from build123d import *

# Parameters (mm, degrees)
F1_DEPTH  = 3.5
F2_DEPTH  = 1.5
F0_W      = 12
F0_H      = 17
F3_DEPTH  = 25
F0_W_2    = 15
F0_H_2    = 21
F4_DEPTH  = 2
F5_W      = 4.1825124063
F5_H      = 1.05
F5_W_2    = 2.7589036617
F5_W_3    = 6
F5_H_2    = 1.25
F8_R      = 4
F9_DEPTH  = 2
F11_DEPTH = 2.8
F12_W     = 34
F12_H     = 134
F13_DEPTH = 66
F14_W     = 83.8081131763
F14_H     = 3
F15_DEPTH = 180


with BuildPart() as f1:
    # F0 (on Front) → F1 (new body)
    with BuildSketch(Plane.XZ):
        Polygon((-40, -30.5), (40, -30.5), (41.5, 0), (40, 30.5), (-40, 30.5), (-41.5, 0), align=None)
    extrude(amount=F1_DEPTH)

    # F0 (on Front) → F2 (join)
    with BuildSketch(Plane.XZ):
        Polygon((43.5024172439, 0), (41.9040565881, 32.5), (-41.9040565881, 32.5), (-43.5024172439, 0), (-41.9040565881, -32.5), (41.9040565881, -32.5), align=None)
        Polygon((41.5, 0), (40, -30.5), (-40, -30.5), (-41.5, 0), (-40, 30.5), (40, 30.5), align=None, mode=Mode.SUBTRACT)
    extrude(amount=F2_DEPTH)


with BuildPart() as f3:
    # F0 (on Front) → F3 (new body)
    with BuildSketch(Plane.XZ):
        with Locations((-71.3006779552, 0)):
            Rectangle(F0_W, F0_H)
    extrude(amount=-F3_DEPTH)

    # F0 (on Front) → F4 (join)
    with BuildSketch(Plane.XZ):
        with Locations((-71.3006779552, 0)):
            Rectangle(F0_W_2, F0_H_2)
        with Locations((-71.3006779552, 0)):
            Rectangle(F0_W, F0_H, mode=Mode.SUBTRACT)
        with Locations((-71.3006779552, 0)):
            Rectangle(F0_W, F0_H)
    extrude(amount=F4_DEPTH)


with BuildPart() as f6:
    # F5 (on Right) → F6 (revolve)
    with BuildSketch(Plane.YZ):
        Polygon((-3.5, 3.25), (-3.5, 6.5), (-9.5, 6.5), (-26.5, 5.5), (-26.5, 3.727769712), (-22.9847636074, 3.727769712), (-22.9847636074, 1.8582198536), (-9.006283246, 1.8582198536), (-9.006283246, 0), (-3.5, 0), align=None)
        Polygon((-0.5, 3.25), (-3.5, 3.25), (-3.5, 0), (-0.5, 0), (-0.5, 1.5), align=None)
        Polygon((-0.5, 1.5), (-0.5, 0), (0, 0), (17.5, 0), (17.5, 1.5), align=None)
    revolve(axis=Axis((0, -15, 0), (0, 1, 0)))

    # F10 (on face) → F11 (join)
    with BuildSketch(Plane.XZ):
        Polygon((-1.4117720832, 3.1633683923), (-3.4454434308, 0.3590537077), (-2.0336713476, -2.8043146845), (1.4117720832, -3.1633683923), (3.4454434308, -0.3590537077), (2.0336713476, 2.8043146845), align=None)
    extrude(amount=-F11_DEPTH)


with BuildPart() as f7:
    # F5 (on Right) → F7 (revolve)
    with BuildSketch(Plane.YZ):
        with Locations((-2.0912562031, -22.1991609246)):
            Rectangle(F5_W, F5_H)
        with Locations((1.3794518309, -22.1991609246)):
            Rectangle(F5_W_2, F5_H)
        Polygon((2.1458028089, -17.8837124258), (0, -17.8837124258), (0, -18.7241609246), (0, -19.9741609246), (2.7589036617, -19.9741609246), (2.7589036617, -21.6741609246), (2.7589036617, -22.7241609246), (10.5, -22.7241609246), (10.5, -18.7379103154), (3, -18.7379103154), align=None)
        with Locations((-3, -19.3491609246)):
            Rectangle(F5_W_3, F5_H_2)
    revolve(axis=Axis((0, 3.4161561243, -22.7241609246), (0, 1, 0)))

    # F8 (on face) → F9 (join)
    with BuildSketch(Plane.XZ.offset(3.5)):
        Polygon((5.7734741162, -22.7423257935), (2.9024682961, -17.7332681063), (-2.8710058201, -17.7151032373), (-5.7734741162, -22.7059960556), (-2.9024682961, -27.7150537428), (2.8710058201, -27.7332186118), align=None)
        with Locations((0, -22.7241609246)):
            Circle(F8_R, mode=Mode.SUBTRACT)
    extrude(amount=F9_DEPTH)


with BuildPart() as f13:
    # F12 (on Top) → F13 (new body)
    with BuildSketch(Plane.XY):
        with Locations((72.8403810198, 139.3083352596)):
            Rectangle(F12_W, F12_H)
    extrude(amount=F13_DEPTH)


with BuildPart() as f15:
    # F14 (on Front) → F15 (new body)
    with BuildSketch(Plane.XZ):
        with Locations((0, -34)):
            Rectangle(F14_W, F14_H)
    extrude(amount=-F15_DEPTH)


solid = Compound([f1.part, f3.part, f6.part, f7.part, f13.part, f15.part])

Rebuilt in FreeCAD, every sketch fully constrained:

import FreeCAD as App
import Part
import Sketcher
from FreeCAD import Vector
Q = App.Units.Quantity


def add_polygon(sketch, points):
    """Adds a closed chain of lines whose ends are joined by coincident constraints."""
    first, n = sketch.GeometryCount, len(points)
    for a, b in zip(points, points[1:] + points[:1]):
        sketch.addGeometry(Part.LineSegment(App.Vector(*a, 0), App.Vector(*b, 0)), False)
    for i in range(n):
        sketch.addConstraint(Sketcher.Constraint("Coincident", first + i, 2, first + (i + 1) % n, 1))

doc = App.newDocument("Part")
body = doc.addObject("PartDesign::Body", "Body")

# Sketch on XZ plane
sketch1 = body.newObject("Sketcher::SketchObject", "Sketch")
sketch1.AttachmentSupport = (doc.getObject("XZ_Plane"), [""])
sketch1.MapMode = "FlatFace"
add_polygon(sketch1, [(-40, -30.5), (40, -30.5), (41.5, 0), (40, 30.5), (-40, 30.5), (-41.5, 0)])  # lines 0-5
sketch1.addConstraint(Sketcher.Constraint("Horizontal", 0))
sketch1.addConstraint(Sketcher.Constraint("Horizontal", 3))
sketch1.addConstraint(Sketcher.Constraint("Symmetric", 0, 2, 3, 2, -1, 1))
sketch1.addConstraint(Sketcher.Constraint("Symmetric", 1, 2, 4, 2, -1, 1))
sketch1.addConstraint(Sketcher.Constraint("PointOnObject", 1, 2, -1))
sketch1.addConstraint(Sketcher.Constraint("Parallel", 2, 5))
sketch1.addConstraint(Sketcher.Constraint("Vertical", 0, 2, 2, 2))
sketch1.addConstraint(Sketcher.Constraint("DistanceX", 0, 1, 0, 2, Q("80 mm")))
sketch1.addConstraint(Sketcher.Constraint("DistanceY", 0, 2, 2, 2, Q("61 mm")))
sketch1.addConstraint(Sketcher.Constraint("DistanceX", 4, 2, 1, 2, Q("83 mm")))
pad1 = body.newObject("PartDesign::Pad", "Pad")
pad1.Profile = sketch1
pad1.Length = 3.5

# Sketch on XZ plane
sketch2 = body.newObject("Sketcher::SketchObject", "Sketch001")
sketch2.AttachmentSupport = (doc.getObject("XZ_Plane"), [""])
sketch2.MapMode = "FlatFace"
add_polygon(sketch2, [(43.502417, 0), (41.904057, 32.5), (-41.904057, 32.5), (-43.502417, 0), (-41.904057, -32.5), (41.904057, -32.5)])  # lines 0-5
add_polygon(sketch2, [(40, 30.5), (41.5, 0), (40, -30.5), (-40, -30.5), (-41.5, 0), (-40, 30.5)])  # lines 6-11
sketch2.addConstraint(Sketcher.Constraint("Horizontal", 1))
sketch2.addConstraint(Sketcher.Constraint("Horizontal", 4))
sketch2.addConstraint(Sketcher.Constraint("Horizontal", 8))
sketch2.addConstraint(Sketcher.Constraint("Horizontal", 11))
sketch2.addConstraint(Sketcher.Constraint("Symmetric", 0, 2, 3, 2, -1, 1))
sketch2.addConstraint(Sketcher.Constraint("Symmetric", 2, 2, 5, 2, -1, 1))
sketch2.addConstraint(Sketcher.Constraint("Symmetric", 6, 2, 9, 2, -1, 1))
sketch2.addConstraint(Sketcher.Constraint("Symmetric", 7, 2, 10, 2, -1, 1))
sketch2.addConstraint(Sketcher.Constraint("PointOnObject", 2, 2, -1))
sketch2.addConstraint(Sketcher.Constraint("PointOnObject", 6, 2, -1))
sketch2.addConstraint(Sketcher.Constraint("Parallel", 2, 5))
sketch2.addConstraint(Sketcher.Constraint("Parallel", 3, 6))
sketch2.addConstraint(Sketcher.Constraint("Parallel", 5, 7))
sketch2.addConstraint(Sketcher.Constraint("Parallel", 6, 9))
sketch2.addConstraint(Sketcher.Constraint("Vertical", 1, 2, 3, 2))
sketch2.addConstraint(Sketcher.Constraint("DistanceX", 8, 2, 8, 1, Q("80 mm")))
sketch2.addConstraint(Sketcher.Constraint("DistanceY", 3, 2, 1, 2, Q("65 mm")))
sketch2.addConstraint(Sketcher.Constraint("DistanceY", 4, 2, 7, 2, Q("2 mm")))
sketch2.addConstraint(Sketcher.Constraint("DistanceX", 9, 2, 6, 2, Q("83 mm")))
sketch2.addConstraint(Sketcher.Constraint("DistanceX", 1, 2, 1, 1, Q("83.808113 mm")))
pad2 = body.newObject("PartDesign::Pad", "Pad001")
pad2.Profile = sketch2
pad2.Length = 1.5
body2 = doc.addObject("PartDesign::Body", "Body001")

# Sketch on XZ plane
sketch3 = body2.newObject("Sketcher::SketchObject", "Sketch002")
sketch3.AttachmentSupport = (doc.getObject("XZ_Plane001"), [""])
sketch3.MapMode = "FlatFace"
add_polygon(sketch3, [(-77.300678, 8.5), (-77.300678, -8.5), (-65.300678, -8.5), (-65.300678, 8.5)])  # lines 0-3
sketch3.addConstraint(Sketcher.Constraint("Vertical", 0))
sketch3.addConstraint(Sketcher.Constraint("Horizontal", 1))
sketch3.addConstraint(Sketcher.Constraint("Vertical", 2))
sketch3.addConstraint(Sketcher.Constraint("Horizontal", 3))
sketch3.addConstraint(Sketcher.Constraint("DistanceX", 1, 1, 1, 2, Q("12 mm")))
sketch3.addConstraint(Sketcher.Constraint("DistanceY", 0, 2, 0, 1, Q("17 mm")))
sketch3.addConstraint(Sketcher.Constraint("DistanceY", 0, 2, -1, 1, Q("8.5 mm")))
sketch3.addConstraint(Sketcher.Constraint("DistanceX", 0, 2, -1, 1, Q("77.300678 mm")))
pad3 = body2.newObject("PartDesign::Pad", "Pad002")
pad3.Profile = sketch3
pad3.Length = 25
pad3.Reversed = True

# Sketch on XZ plane
sketch4 = body2.newObject("Sketcher::SketchObject", "Sketch003")
sketch4.AttachmentSupport = (doc.getObject("XZ_Plane001"), [""])
sketch4.MapMode = "FlatFace"
add_polygon(sketch4, [(-78.800678, 10.5), (-78.800678, -10.5), (-63.800678, -10.5), (-63.800678, 10.5)])  # lines 0-3
sketch4.addConstraint(Sketcher.Constraint("Vertical", 0))
sketch4.addConstraint(Sketcher.Constraint("Horizontal", 1))
sketch4.addConstraint(Sketcher.Constraint("Vertical", 2))
sketch4.addConstraint(Sketcher.Constraint("Horizontal", 3))
sketch4.addConstraint(Sketcher.Constraint("DistanceX", 1, 1, 1, 2, Q("15 mm")))
sketch4.addConstraint(Sketcher.Constraint("DistanceY", 0, 2, 0, 1, Q("21 mm")))
sketch4.addConstraint(Sketcher.Constraint("DistanceY", 0, 2, -1, 1, Q("10.5 mm")))
sketch4.addConstraint(Sketcher.Constraint("DistanceX", 0, 2, -1, 1, Q("78.800678 mm")))
pad4 = body2.newObject("PartDesign::Pad", "Pad003")
pad4.Profile = sketch4
pad4.Length = 2
body3 = doc.addObject("PartDesign::Body", "Body002")

# Sketch on YZ plane
sketch5 = body3.newObject("Sketcher::SketchObject", "Sketch004")
sketch5.AttachmentSupport = (doc.getObject("YZ_Plane002"), [""])
sketch5.MapMode = "FlatFace"
add_polygon(sketch5, [(-3.5, 6.5), (-9.5, 6.5), (-26.5, 5.5), (-26.5, 3.72777), (-22.984764, 3.72777), (-22.984764, 1.85822), (-9.006283, 1.85822), (-9.006283, 0), (17.5, 0), (17.5, 1.5), (-0.5, 1.5), (-0.5, 3.25), (-3.5, 3.25)])  # lines 0-12
sketch5.addConstraint(Sketcher.Constraint("Horizontal", 0))
sketch5.addConstraint(Sketcher.Constraint("Vertical", 2))
sketch5.addConstraint(Sketcher.Constraint("Horizontal", 3))
sketch5.addConstraint(Sketcher.Constraint("Vertical", 4))
sketch5.addConstraint(Sketcher.Constraint("Horizontal", 5))
sketch5.addConstraint(Sketcher.Constraint("Vertical", 6))
sketch5.addConstraint(Sketcher.Constraint("Horizontal", 7))
sketch5.addConstraint(Sketcher.Constraint("Vertical", 8))
sketch5.addConstraint(Sketcher.Constraint("Horizontal", 9))
sketch5.addConstraint(Sketcher.Constraint("Vertical", 10))
sketch5.addConstraint(Sketcher.Constraint("Horizontal", 11))
sketch5.addConstraint(Sketcher.Constraint("Vertical", 12))
sketch5.addConstraint(Sketcher.Constraint("PointOnObject", 6, 2, -1))
sketch5.addConstraint(Sketcher.Constraint("DistanceX", 0, 2, 0, 1, Q("6 mm")))
sketch5.addConstraint(Sketcher.Constraint("DistanceX", 9, 2, 9, 1, Q("18 mm")))
sketch5.addConstraint(Sketcher.Constraint("DistanceX", 11, 2, 11, 1, Q("3 mm")))
sketch5.addConstraint(Sketcher.Constraint("DistanceY", 8, 1, 8, 2, Q("1.5 mm")))
sketch5.addConstraint(Sketcher.Constraint("DistanceX", 1, 2, 0, 2, Q("17 mm")))
sketch5.addConstraint(Sketcher.Constraint("DistanceY", 1, 2, 0, 2, Q("1 mm")))
sketch5.addConstraint(Sketcher.Constraint("DistanceY", 8, 2, 0, 2, Q("5 mm")))
sketch5.addConstraint(Sketcher.Constraint("DistanceY", 10, 1, 10, 2, Q("1.75 mm")))
sketch5.addConstraint(Sketcher.Constraint("DistanceX", 0, 2, -1, 1, Q("9.5 mm")))
sketch5.addConstraint(Sketcher.Constraint("DistanceX", 5, 1, 5, 2, Q("13.97848 mm")))
sketch5.addConstraint(Sketcher.Constraint("DistanceY", 2, 2, 2, 1, Q("1.77223 mm")))
sketch5.addConstraint(Sketcher.Constraint("DistanceY", 4, 2, 4, 1, Q("1.86955 mm")))
sketch5.addConstraint(Sketcher.Constraint("DistanceX", 3, 1, 3, 2, Q("3.515236 mm")))
revolution = body3.newObject("PartDesign::Revolution", "Revolution")
revolution.Profile = sketch5
revolution.ReferenceAxis = (sketch5, ["H_Axis"])
revolution.Angle = 360

# Sketch on XZ plane
sketch6 = body3.newObject("Sketcher::SketchObject", "Sketch005")
sketch6.AttachmentSupport = (doc.getObject("XZ_Plane002"), [""])
sketch6.MapMode = "FlatFace"
add_polygon(sketch6, [(-1.411772, 3.163368), (-3.445443, 0.359054), (-2.033671, -2.804315), (1.411772, -3.163368), (3.445443, -0.359054), (2.033671, 2.804315)])  # lines 0-5
sketch6.addConstraint(Sketcher.Constraint("Symmetric", 0, 2, 3, 2, -1, 1))
sketch6.addConstraint(Sketcher.Constraint("Symmetric", 1, 2, 4, 2, -1, 1))
sketch6.addConstraint(Sketcher.Constraint("Symmetric", 2, 2, 5, 2, -1, 1))
sketch6.addConstraint(Sketcher.Constraint("Equal", 0, 1))
sketch6.addConstraint(Sketcher.Constraint("Equal", 1, 2))
sketch6.addConstraint(Sketcher.Constraint("Distance", 0, Q("3.464102 mm")))
sketch6.addConstraint(Sketcher.Constraint("DistanceX", 2, 2, 4, 2, Q("0.621899 mm")))
sketch6.addConstraint(Sketcher.Constraint("DistanceX", 1, 2, -1, 1, Q("2.033671 mm")))
sketch6.addConstraint(Sketcher.Constraint("DistanceY", 2, 2, -1, 1, Q("3.163368 mm")))
pad5 = body3.newObject("PartDesign::Pad", "Pad004")
pad5.Profile = sketch6
pad5.Length = 2.8
pad5.Reversed = True
body4 = doc.addObject("PartDesign::Body", "Body003")

# Sketch on YZ plane
sketch7 = body4.newObject("Sketcher::SketchObject", "Sketch006")
sketch7.AttachmentSupport = (doc.getObject("YZ_Plane003"), [""])
sketch7.MapMode = "FlatFace"
add_polygon(sketch7, [(-4.182512, -21.674161), (-4.182512, -22.724161), (10.5, -22.724161), (10.5, -18.73791), (3, -18.73791), (2.145803, -17.883712), (0, -17.883712), (0, -18.724161), (-6, -18.724161), (-6, -19.974161), (2.758904, -19.974161), (2.758904, -21.674161)])  # lines 0-11
sketch7.addGeometry(Part.LineSegment(Vector(-6, -22.724161, 0), Vector(10.5, -22.724161, 0)), True)  # axis
sketch7.addConstraint(Sketcher.Constraint("Vertical", 0))
sketch7.addConstraint(Sketcher.Constraint("Horizontal", 1))
sketch7.addConstraint(Sketcher.Constraint("Vertical", 2))
sketch7.addConstraint(Sketcher.Constraint("Horizontal", 3))
sketch7.addConstraint(Sketcher.Constraint("Horizontal", 5))
sketch7.addConstraint(Sketcher.Constraint("Vertical", 6))
sketch7.addConstraint(Sketcher.Constraint("Horizontal", 7))
sketch7.addConstraint(Sketcher.Constraint("Vertical", 8))
sketch7.addConstraint(Sketcher.Constraint("Horizontal", 9))
sketch7.addConstraint(Sketcher.Constraint("Vertical", 10))
sketch7.addConstraint(Sketcher.Constraint("Horizontal", 11))
sketch7.addConstraint(Sketcher.Constraint("Horizontal", 12))
sketch7.addConstraint(Sketcher.Constraint("Coincident", 12, 2, 1, 2))
sketch7.addConstraint(Sketcher.Constraint("PointOnObject", 5, 2, -2))
sketch7.addConstraint(Sketcher.Constraint("Vertical", 8, 2, 12, 1))
sketch7.addConstraint(Sketcher.Constraint("DistanceX", 7, 2, 7, 1, Q("6 mm")))
sketch7.addConstraint(Sketcher.Constraint("DistanceX", 3, 2, 3, 1, Q("7.5 mm")))
sketch7.addConstraint(Sketcher.Constraint("DistanceX", 12, 1, 12, 2, Q("16.5 mm")))
sketch7.addConstraint(Sketcher.Constraint("DistanceY", 10, 2, 10, 1, Q("1.7 mm")))
sketch7.addConstraint(Sketcher.Constraint("DistanceY", 0, 2, 6, 2, Q("4 mm")))
sketch7.addConstraint(Sketcher.Constraint("DistanceY", 0, 2, 0, 1, Q("1.05 mm")))
sketch7.addConstraint(Sketcher.Constraint("DistanceY", 2, 1, 2, 2, Q("3.986251 mm")))
sketch7.addConstraint(Sketcher.Constraint("DistanceY", 6, 2, 6, 1, Q("0.840448 mm")))
sketch7.addConstraint(Sketcher.Constraint("DistanceX", 4, 2, 9, 2, Q("0.613101 mm")))
sketch7.addConstraint(Sketcher.Constraint("DistanceX", 1, 1, 1, 2, Q("14.682512 mm")))
sketch7.addConstraint(Sketcher.Constraint("DistanceX", 5, 2, 5, 1, Q("2.145803 mm")))
sketch7.addConstraint(Sketcher.Constraint("DistanceY", 0, 2, -1, 1, Q("22.724161 mm")))
revolution2 = body4.newObject("PartDesign::Revolution", "Revolution001")
revolution2.Profile = sketch7
revolution2.ReferenceAxis = (sketch7, ["Axis0"])
revolution2.Angle = 360

# Sketch on XZ plane
sketch8 = body4.newObject("Sketcher::SketchObject", "Sketch007")
sketch8.AttachmentSupport = (doc.getObject("XZ_Plane003"), [""])
sketch8.MapMode = "FlatFace"
sketch8.AttachmentOffset = App.Placement(Vector(0, 0, 3.5), App.Rotation())
add_polygon(sketch8, [(5.773474, -22.742326), (2.902468, -17.733268), (-2.871006, -17.715103), (-5.773474, -22.705996), (-2.902468, -27.715054), (2.871006, -27.733219)])  # lines 0-5
sketch8.addGeometry(Part.Circle(Vector(0, -22.724161, 0), Vector(0, 0, 1), 4), False)  # 6
sketch8.addConstraint(Sketcher.Constraint("PointOnObject", 6, 3, -2))
sketch8.addConstraint(Sketcher.Constraint("Diameter", 6, Q("8 mm")))
sketch8.addConstraint(Sketcher.Constraint("DistanceY", 6, 3, -1, 1, Q("22.724161 mm")))
sketch8.addConstraint(Sketcher.Constraint("DistanceX", -1, 1, 0, 2, Q("2.902468 mm")))
sketch8.addConstraint(Sketcher.Constraint("DistanceY", 0, 2, -1, 1, Q("17.733268 mm")))
sketch8.addConstraint(Sketcher.Constraint("DistanceX", 3, 2, -1, 1, Q("2.902468 mm")))
sketch8.addConstraint(Sketcher.Constraint("DistanceY", 4, 2, -1, 1, Q("27.733219 mm")))
sketch8.addConstraint(Sketcher.Constraint("DistanceX", 2, 2, 1, 2, Q("2.902468 mm")))
sketch8.addConstraint(Sketcher.Constraint("DistanceY", 3, 2, 1, 2, Q("9.999951 mm")))
sketch8.addConstraint(Sketcher.Constraint("DistanceX", 2, 2, 4, 2, Q("8.64448 mm")))
sketch8.addConstraint(Sketcher.Constraint("DistanceX", 4, 2, 5, 2, Q("2.902468 mm")))
sketch8.addConstraint(Sketcher.Constraint("Distance", 0, Q("5.773503 mm")))
sketch8.addConstraint(Sketcher.Constraint("Distance", 1, Q("5.773503 mm")))
sketch8.addConstraint(Sketcher.Constraint("Distance", 2, Q("5.773503 mm")))
sketch8.addConstraint(Sketcher.Constraint("DistanceY", 1, 2, -1, 1, Q("17.715103 mm")))
pad6 = body4.newObject("PartDesign::Pad", "Pad005")
pad6.Profile = sketch8
pad6.Length = 2
body5 = doc.addObject("PartDesign::Body", "Body004")

# Sketch on XY plane
sketch9 = body5.newObject("Sketcher::SketchObject", "Sketch008")
sketch9.AttachmentSupport = (doc.getObject("XY_Plane004"), [""])
sketch9.MapMode = "FlatFace"
add_polygon(sketch9, [(55.840381, 206.308335), (55.840381, 72.308335), (89.840381, 72.308335), (89.840381, 206.308335)])  # lines 0-3
sketch9.addConstraint(Sketcher.Constraint("Vertical", 0))
sketch9.addConstraint(Sketcher.Constraint("Horizontal", 1))
sketch9.addConstraint(Sketcher.Constraint("Vertical", 2))
sketch9.addConstraint(Sketcher.Constraint("Horizontal", 3))
sketch9.addConstraint(Sketcher.Constraint("DistanceX", 1, 1, 1, 2, Q("34 mm")))
sketch9.addConstraint(Sketcher.Constraint("DistanceY", 0, 2, 0, 1, Q("134 mm")))
sketch9.addConstraint(Sketcher.Constraint("DistanceX", -1, 1, 0, 2, Q("55.840381 mm")))
sketch9.addConstraint(Sketcher.Constraint("DistanceY", -1, 1, 0, 2, Q("72.308335 mm")))
pad7 = body5.newObject("PartDesign::Pad", "Pad006")
pad7.Profile = sketch9
pad7.Length = 66
body6 = doc.addObject("PartDesign::Body", "Body005")

# Sketch on XZ plane
sketch10 = body6.newObject("Sketcher::SketchObject", "Sketch009")
sketch10.AttachmentSupport = (doc.getObject("XZ_Plane005"), [""])
sketch10.MapMode = "FlatFace"
add_polygon(sketch10, [(-41.904057, -32.5), (-41.904057, -35.5), (41.904057, -35.5), (41.904057, -32.5)])  # lines 0-3
sketch10.addConstraint(Sketcher.Constraint("Vertical", 0))
sketch10.addConstraint(Sketcher.Constraint("Horizontal", 1))
sketch10.addConstraint(Sketcher.Constraint("Vertical", 2))
sketch10.addConstraint(Sketcher.Constraint("Horizontal", 3))
sketch10.addConstraint(Sketcher.Constraint("DistanceY", 0, 2, 0, 1, Q("3 mm")))
sketch10.addConstraint(Sketcher.Constraint("DistanceY", 0, 2, -1, 1, Q("35.5 mm")))
sketch10.addConstraint(Sketcher.Constraint("DistanceX", 1, 1, 1, 2, Q("83.808113 mm")))
sketch10.addConstraint(Sketcher.Constraint("DistanceX", 0, 2, -1, 1, Q("41.904057 mm")))
pad8 = body6.newObject("PartDesign::Pad", "Pad007")
pad8.Profile = sketch10
pad8.Length = 180
pad8.Reversed = True

doc.recompute()
